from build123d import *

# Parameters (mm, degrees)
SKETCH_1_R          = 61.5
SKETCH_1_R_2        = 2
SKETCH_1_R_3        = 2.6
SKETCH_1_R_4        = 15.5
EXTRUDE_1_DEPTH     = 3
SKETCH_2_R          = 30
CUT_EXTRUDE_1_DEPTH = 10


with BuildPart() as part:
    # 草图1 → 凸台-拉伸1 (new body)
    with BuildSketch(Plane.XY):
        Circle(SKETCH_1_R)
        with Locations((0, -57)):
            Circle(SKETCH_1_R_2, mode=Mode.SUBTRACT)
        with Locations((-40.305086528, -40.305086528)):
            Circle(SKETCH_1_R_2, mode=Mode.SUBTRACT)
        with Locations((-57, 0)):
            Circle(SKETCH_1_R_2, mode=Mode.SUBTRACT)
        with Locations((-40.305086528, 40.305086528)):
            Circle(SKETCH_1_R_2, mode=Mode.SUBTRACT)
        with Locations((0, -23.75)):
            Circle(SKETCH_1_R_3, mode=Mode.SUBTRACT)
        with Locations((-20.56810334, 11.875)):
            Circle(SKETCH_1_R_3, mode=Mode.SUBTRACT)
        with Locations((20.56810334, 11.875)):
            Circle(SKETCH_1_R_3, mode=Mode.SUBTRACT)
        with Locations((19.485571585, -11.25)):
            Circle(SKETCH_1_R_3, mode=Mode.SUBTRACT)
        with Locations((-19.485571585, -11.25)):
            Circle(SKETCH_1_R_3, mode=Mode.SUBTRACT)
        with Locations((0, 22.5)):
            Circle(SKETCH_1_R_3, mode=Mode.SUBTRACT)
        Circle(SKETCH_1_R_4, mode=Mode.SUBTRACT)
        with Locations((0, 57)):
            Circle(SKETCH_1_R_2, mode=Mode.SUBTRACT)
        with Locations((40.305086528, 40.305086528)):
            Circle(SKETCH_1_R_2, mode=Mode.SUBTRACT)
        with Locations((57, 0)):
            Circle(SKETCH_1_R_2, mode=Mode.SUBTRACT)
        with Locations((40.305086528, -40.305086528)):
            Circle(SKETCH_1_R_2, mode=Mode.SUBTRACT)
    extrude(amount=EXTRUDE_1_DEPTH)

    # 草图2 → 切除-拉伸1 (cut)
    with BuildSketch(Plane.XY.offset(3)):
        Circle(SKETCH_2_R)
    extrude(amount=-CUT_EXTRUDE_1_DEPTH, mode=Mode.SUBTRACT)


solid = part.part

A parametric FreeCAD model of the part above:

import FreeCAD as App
import Part
import Sketcher
from FreeCAD import Vector
Q = App.Units.Quantity

doc = App.newDocument("Part")
body = doc.addObject("PartDesign::Body", "Body")

# Sketch on XY plane
sketch1 = doc.addObject("Sketcher::SketchObject", "Sketch")
body.addObject(sketch1)
sketch1.AttachmentSupport = (doc.XY_Plane, [""])
sketch1.MapMode = "FlatFace"
sketch1.addGeometry(Part.Circle(Vector(0, 0, 0), Vector(0, 0, 1), 61.5), False)
sketch1.addGeometry(Part.Circle(Vector(-40.305087, -40.305087, 0), Vector(0, 0, 1), 2), False)
sketch1.addGeometry(Part.Circle(Vector(-19.485572, -11.25, 0), Vector(0, 0, 1), 2.6), False)
sketch1.addGeometry(Part.Circle(Vector(0, -57, 0), Vector(0, 0, 1), 2), False)
sketch1.addGeometry(Part.Circle(Vector(40.305087, -40.305087, 0), Vector(0, 0, 1), 2), False)
sketch1.addGeometry(Part.Circle(Vector(0, -23.75, 0), Vector(0, 0, 1), 2.6), False)
sketch1.addGeometry(Part.Circle(Vector(19.485572, -11.25, 0), Vector(0, 0, 1), 2.6), False)
sketch1.addGeometry(Part.Circle(Vector(-57, 0, 0), Vector(0, 0, 1), 2), False)
sketch1.addGeometry(Part.Circle(Vector(-20.568103, 11.875, 0), Vector(0, 0, 1), 2.6), False)
sketch1.addGeometry(Part.Circle(Vector(-40.305087, 40.305087, 0), Vector(0, 0, 1), 2), False)
sketch1.addGeometry(Part.Circle(Vector(0, 0, 0), Vector(0, 0, 1), 15.5), False)
sketch1.addGeometry(Part.Circle(Vector(20.568103, 11.875, 0), Vector(0, 0, 1), 2.6), False)
sketch1.addGeometry(Part.Circle(Vector(0, 22.5, 0), Vector(0, 0, 1), 2.6), False)
sketch1.addGeometry(Part.Circle(Vector(57, 0, 0), Vector(0, 0, 1), 2), False)
sketch1.addGeometry(Part.Circle(Vector(0, 57, 0), Vector(0, 0, 1), 2), False)
sketch1.addGeometry(Part.Circle(Vector(40.305087, 40.305087, 0), Vector(0, 0, 1), 2), False)
sketch1.addConstraint(Sketcher.Constraint("Coincident", 0, 3, -1, 1))
sketch1.addConstraint(Sketcher.Constraint("Coincident", 10, 3, -1, 1))
sketch1.addConstraint(Sketcher.Constraint("Equal", 1, 3))
sketch1.addConstraint(Sketcher.Constraint("Equal", 3, 4))
sketch1.addConstraint(Sketcher.Constraint("Equal", 2, 5))
sketch1.addConstraint(Sketcher.Constraint("Equal", 5, 6))
sketch1.addConstraint(Sketcher.Constraint("Equal", 4, 7))
sketch1.addConstraint(Sketcher.Constraint("Equal", 6, 8))
sketch1.addConstraint(Sketcher.Constraint("Equal", 7, 9))
sketch1.addConstraint(Sketcher.Constraint("Equal", 8, 11))
sketch1.addConstraint(Sketcher.Constraint("Equal", 11, 12))
sketch1.addConstraint(Sketcher.Constraint("Equal", 9, 13))
sketch1.addConstraint(Sketcher.Constraint("Equal", 13, 14))
sketch1.addConstraint(Sketcher.Constraint("Equal", 14, 15))
sketch1.addConstraint(Sketcher.Constraint("Symmetric", 4, 3, 9, 3, -1, 1))
sketch1.addConstraint(Sketcher.Constraint("Symmetric", 7, 3, 13, 3, -1, 1))
sketch1.addConstraint(Sketcher.Constraint("Symmetric", 3, 3, 14, 3, -1, 1))
sketch1.addConstraint(Sketcher.Constraint("Symmetric", 1, 3, 15, 3, -1, 1))
sketch1.addConstraint(Sketcher.Constraint("Symmetric", 1, 3, 4, 3, -2))
sketch1.addConstraint(Sketcher.Constraint("Symmetric", 2, 3, 6, 3, -2))
sketch1.addConstraint(Sketcher.Constraint("Symmetric", 8, 3, 11, 3, -2))
sketch1.addConstraint(Sketcher.Constraint("PointOnObject", 3, 3, -2))
sketch1.addConstraint(Sketcher.Constraint("PointOnObject", 5, 3, -2))
sketch1.addConstraint(Sketcher.Constraint("PointOnObject", 7, 3, -1))
sketch1.addConstraint(Sketcher.Constraint("PointOnObject", 12, 3, -2))
sketch1.addConstraint(Sketcher.Constraint("Diameter", 0, Q("123 mm")))
sketch1.addConstraint(Sketcher.Constraint("Diameter", 1, Q("4 mm")))
sketch1.addConstraint(Sketcher.Constraint("Diameter", 10, Q("31 mm")))
sketch1.addConstraint(Sketcher.Constraint("Diameter", 2, Q("5.2 mm")))
sketch1.addConstraint(Sketcher.Constraint("DistanceY", 3, 3, -1, 1, Q("57 mm")))
sketch1.addConstraint(Sketcher.Constraint("DistanceX", 7, 3, -1, 1, Q("57 mm")))
sketch1.addConstraint(Sketcher.Constraint("DistanceY", -1, 1, 12, 3, Q("22.5 mm")))
sketch1.addConstraint(Sketcher.Constraint("DistanceY", 5, 3, 2, 3, Q("12.5 mm")))
sketch1.addConstraint(Sketcher.Constraint("DistanceY", 2, 3, -1, 1, Q("11.25 mm")))
sketch1.addConstraint(Sketcher.Constraint("DistanceY", -1, 1, 8, 3, Q("11.875 mm")))
sketch1.addConstraint(Sketcher.Constraint("DistanceX", 2, 3, -1, 1, Q("19.485572 mm")))
sketch1.addConstraint(Sketcher.Constraint("DistanceX", 2, 3, 4, 3, Q("59.790658 mm")))
sketch1.addConstraint(Sketcher.Constraint("DistanceX", 8, 3, 2, 3, Q("1.082532 mm")))
sketch1.addConstraint(Sketcher.Constraint("DistanceY", 1, 3, -1, 1, Q("40.305087 mm")))
pad1 = doc.addObject("PartDesign::Pad", "Pad")
body.addObject(pad1)
pad1.Profile = sketch1
pad1.Length = 3

# Sketch on XY plane
sketch2 = doc.addObject("Sketcher::SketchObject", "Sketch001")
body.addObject(sketch2)
sketch2.AttachmentSupport = (doc.XY_Plane, [""])
sketch2.MapMode = "FlatFace"
sketch2.AttachmentOffset = App.Placement(Vector(0, 0, 3), App.Rotation())
sketch2.addGeometry(Part.Circle(Vector(0, 0, 0), Vector(0, 0, 1), 30), False)
sketch2.addConstraint(Sketcher.Constraint("Coincident", 0, 3, -1, 1))
sketch2.addConstraint(Sketcher.Constraint("Diameter", 0, Q("60 mm")))
pocket1 = doc.addObject("PartDesign::Pocket", "Pocket")
body.addObject(pocket1)
pocket1.Profile = sketch2
pocket1.Length = 10

doc.recompute()
